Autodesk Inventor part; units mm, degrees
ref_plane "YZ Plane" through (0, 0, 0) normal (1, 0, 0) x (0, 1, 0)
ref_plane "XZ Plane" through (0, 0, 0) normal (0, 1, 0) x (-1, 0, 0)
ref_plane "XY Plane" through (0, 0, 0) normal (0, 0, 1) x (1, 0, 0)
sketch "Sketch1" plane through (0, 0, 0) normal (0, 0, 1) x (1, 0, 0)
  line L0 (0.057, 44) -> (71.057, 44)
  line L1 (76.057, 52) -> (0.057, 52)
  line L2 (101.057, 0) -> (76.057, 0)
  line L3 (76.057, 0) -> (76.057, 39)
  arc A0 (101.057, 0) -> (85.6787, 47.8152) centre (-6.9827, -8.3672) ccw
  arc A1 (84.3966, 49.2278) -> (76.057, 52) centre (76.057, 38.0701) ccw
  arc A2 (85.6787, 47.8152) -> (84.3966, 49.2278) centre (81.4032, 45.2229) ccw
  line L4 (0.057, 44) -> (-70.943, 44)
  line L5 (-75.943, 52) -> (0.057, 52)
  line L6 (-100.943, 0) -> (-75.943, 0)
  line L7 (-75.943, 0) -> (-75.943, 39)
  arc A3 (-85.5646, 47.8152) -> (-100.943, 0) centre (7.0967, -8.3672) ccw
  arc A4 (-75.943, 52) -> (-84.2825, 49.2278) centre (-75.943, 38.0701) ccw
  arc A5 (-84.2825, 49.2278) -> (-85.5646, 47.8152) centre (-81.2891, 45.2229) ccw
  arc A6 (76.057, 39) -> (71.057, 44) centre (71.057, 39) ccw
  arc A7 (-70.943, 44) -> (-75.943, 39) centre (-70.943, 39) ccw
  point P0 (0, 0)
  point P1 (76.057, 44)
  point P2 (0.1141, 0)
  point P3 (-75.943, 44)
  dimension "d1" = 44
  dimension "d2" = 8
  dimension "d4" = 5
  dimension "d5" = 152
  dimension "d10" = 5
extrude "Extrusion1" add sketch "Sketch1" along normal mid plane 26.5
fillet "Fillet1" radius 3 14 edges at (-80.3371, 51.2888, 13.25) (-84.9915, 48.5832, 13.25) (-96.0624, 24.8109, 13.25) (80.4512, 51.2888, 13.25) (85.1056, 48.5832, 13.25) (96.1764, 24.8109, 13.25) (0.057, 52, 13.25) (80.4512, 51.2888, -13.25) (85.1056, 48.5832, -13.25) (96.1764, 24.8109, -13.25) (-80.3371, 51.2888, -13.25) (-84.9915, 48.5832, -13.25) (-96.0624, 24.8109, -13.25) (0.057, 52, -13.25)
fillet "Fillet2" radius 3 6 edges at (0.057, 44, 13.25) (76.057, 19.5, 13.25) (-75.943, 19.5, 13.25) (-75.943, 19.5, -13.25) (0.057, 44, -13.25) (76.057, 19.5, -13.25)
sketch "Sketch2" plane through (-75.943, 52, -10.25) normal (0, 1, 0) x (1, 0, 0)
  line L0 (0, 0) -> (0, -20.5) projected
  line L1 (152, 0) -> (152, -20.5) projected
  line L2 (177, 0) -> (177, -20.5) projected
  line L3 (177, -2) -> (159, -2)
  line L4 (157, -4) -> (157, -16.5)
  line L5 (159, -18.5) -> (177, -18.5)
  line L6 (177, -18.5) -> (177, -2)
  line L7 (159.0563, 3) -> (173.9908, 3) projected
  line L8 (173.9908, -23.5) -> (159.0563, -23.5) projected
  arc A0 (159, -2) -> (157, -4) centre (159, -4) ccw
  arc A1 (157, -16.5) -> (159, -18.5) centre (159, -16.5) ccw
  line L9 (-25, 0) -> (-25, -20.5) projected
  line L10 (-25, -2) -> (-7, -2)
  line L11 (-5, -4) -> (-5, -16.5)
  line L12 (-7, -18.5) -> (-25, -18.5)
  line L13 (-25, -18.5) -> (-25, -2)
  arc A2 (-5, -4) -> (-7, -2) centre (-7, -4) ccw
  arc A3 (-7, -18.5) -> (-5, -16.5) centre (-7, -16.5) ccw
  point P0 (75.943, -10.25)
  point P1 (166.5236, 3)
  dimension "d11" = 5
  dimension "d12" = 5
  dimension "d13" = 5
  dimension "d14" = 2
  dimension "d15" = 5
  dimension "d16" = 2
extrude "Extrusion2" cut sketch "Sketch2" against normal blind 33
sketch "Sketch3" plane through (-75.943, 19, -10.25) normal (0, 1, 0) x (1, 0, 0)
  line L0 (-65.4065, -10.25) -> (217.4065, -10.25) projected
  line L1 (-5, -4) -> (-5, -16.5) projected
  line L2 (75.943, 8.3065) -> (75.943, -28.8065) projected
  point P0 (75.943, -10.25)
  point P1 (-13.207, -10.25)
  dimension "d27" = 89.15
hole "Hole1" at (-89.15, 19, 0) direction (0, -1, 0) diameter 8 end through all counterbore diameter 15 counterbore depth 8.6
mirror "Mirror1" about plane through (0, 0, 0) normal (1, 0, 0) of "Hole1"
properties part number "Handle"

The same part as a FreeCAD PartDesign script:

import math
import FreeCAD as App
import Part
import Sketcher
Q = App.Units.Quantity


def edges_at(feature, points):
    """Names of the edges that pass closest to the given points."""
    edges = feature.Shape.Edges
    near = lambda p: min(range(len(edges)), key=lambda i: edges[i].distToShape(Part.Vertex(*p))[0])
    return sorted({f"Edge{near(p) + 1}" for p in points})

doc = App.newDocument("Part")
body = doc.addObject("PartDesign::Body", "Body")

# Sketch on XY plane
sketch1 = body.newObject("Sketcher::SketchObject", "Sketch")
sketch1.AttachmentSupport = (doc.getObject("XY_Plane"), [""])
sketch1.MapMode = "FlatFace"
sketch1.addGeometry(Part.LineSegment(App.Vector(-70.943, 44, 0), App.Vector(71.057, 44, 0)), False)
sketch1.addGeometry(Part.ArcOfCircle(Part.Circle(App.Vector(71.057, 39, 0), App.Vector(0, 0, 1), 5), math.radians(0), math.radians(90)), False)
sketch1.addGeometry(Part.LineSegment(App.Vector(76.057, 39, 0), App.Vector(76.057, 0, 0)), False)
sketch1.addGeometry(Part.LineSegment(App.Vector(76.057, 0, 0), App.Vector(101.057, 0, 0)), False)
sketch1.addGeometry(Part.ArcOfCircle(Part.Circle(App.Vector(-6.9827, -8.3672, 0), App.Vector(0, 0, 1), 108.363217), math.radians(4.428467), math.radians(31.229244)), False)
sketch1.addGeometry(Part.ArcOfCircle(Part.Circle(App.Vector(81.4032, 45.2229, 0), App.Vector(0, 0, 1), 4.999992), math.radians(31.229064), math.radians(53.224297)), False)
sketch1.addGeometry(Part.ArcOfCircle(Part.Circle(App.Vector(76.057, 38.0701, 0), App.Vector(0, 0, 1), 13.929939), math.radians(53.224458), math.radians(90)), False)
sketch1.addGeometry(Part.LineSegment(App.Vector(76.057, 52, 0), App.Vector(-75.943, 52, 0)), False)
sketch1.addGeometry(Part.ArcOfCircle(Part.Circle(App.Vector(-75.943, 38.0701, 0), App.Vector(0, 0, 1), 13.9299), math.radians(90), math.radians(126.775213)), False)
sketch1.addGeometry(Part.ArcOfCircle(Part.Circle(App.Vector(-81.2891, 45.2229, 0), App.Vector(0, 0, 1), 4.999967), math.radians(126.775703), math.radians(148.770936)), False)
sketch1.addGeometry(Part.ArcOfCircle(Part.Circle(App.Vector(7.0967, -8.3672, 0), App.Vector(0, 0, 1), 108.363179), math.radians(148.770729), math.radians(175.571533)), False)
sketch1.addGeometry(Part.LineSegment(App.Vector(-100.943, 0, 0), App.Vector(-75.943, 0, 0)), False)
sketch1.addGeometry(Part.LineSegment(App.Vector(-75.943, 0, 0), App.Vector(-75.943, 39, 0)), False)
sketch1.addGeometry(Part.ArcOfCircle(Part.Circle(App.Vector(-70.943, 39, 0), App.Vector(0, 0, 1), 5), math.radians(90), math.radians(180)), False)
sketch1.addConstraint(Sketcher.Constraint("Tangent", 0, 2, 1, 2))
sketch1.addConstraint(Sketcher.Constraint("Tangent", 1, 1, 2, 1))
sketch1.addConstraint(Sketcher.Constraint("Coincident", 2, 2, 3, 1))
sketch1.addConstraint(Sketcher.Constraint("Coincident", 3, 2, 4, 1))
sketch1.addConstraint(Sketcher.Constraint("Tangent", 4, 2, 5, 1))
sketch1.addConstraint(Sketcher.Constraint("Tangent", 5, 2, 6, 1))
sketch1.addConstraint(Sketcher.Constraint("Tangent", 6, 2, 7, 1))
sketch1.addConstraint(Sketcher.Constraint("Tangent", 7, 2, 8, 1))
sketch1.addConstraint(Sketcher.Constraint("Tangent", 8, 2, 9, 1))
sketch1.addConstraint(Sketcher.Constraint("Tangent", 9, 2, 10, 1))
sketch1.addConstraint(Sketcher.Constraint("Coincident", 10, 2, 11, 1))
sketch1.addConstraint(Sketcher.Constraint("Coincident", 11, 2, 12, 1))
sketch1.addConstraint(Sketcher.Constraint("Tangent", 12, 2, 13, 2))
sketch1.addConstraint(Sketcher.Constraint("Tangent", 13, 1, 0, 1))
sketch1.addConstraint(Sketcher.Constraint("Horizontal", 0))
sketch1.addConstraint(Sketcher.Constraint("Vertical", 2))
sketch1.addConstraint(Sketcher.Constraint("Horizontal", 3))
sketch1.addConstraint(Sketcher.Constraint("Horizontal", 7))
sketch1.addConstraint(Sketcher.Constraint("Horizontal", 11))
sketch1.addConstraint(Sketcher.Constraint("Vertical", 12))
sketch1.addConstraint(Sketcher.Constraint("Equal", 1, 5))
sketch1.addConstraint(Sketcher.Constraint("Equal", 6, 8))
sketch1.addConstraint(Sketcher.Constraint("Equal", 5, 9))
sketch1.addConstraint(Sketcher.Constraint("Equal", 4, 10))
sketch1.addConstraint(Sketcher.Constraint("Equal", 9, 13))
sketch1.addConstraint(Sketcher.Constraint("PointOnObject", 2, 2, -1))
sketch1.addConstraint(Sketcher.Constraint("PointOnObject", 10, 2, -1))
sketch1.addConstraint(Sketcher.Constraint("Horizontal", 5, 3, 9, 3))
sketch1.addConstraint(Sketcher.Constraint("Horizontal", 4, 3, 10, 3))
sketch1.addConstraint(Sketcher.Constraint("Vertical", 6, 3, 1, 1))
sketch1.addConstraint(Sketcher.Constraint("Vertical", 7, 2, 11, 2))
sketch1.addConstraint(Sketcher.Constraint("Radius", 1, Q("5 mm")))
sketch1.addConstraint(Sketcher.Constraint("DistanceX", 7, 2, 7, 1, Q("152 mm")))
sketch1.addConstraint(Sketcher.Constraint("DistanceY", -1, 1, 0, 2, Q("44 mm")))
sketch1.addConstraint(Sketcher.Constraint("DistanceY", 0, 2, 6, 2, Q("8 mm")))
sketch1.addConstraint(Sketcher.Constraint("DistanceX", 3, 1, 3, 2, Q("25 mm")))
sketch1.addConstraint(Sketcher.Constraint("Radius", 6, Q("13.93 mm")))
sketch1.addConstraint(Sketcher.Constraint("Radius", 4, Q("108.3632 mm")))
sketch1.addConstraint(Sketcher.Constraint("DistanceY", 4, 3, 5, 3, Q("53.59 mm")))
sketch1.addConstraint(Sketcher.Constraint("DistanceX", -1, 1, 1, 3, Q("71.057 mm")))
pad1 = body.newObject("PartDesign::Pad", "Pad")
pad1.Profile = sketch1
pad1.Length = 26.5
pad1.Midplane = True
doc.recompute()

fillet = body.newObject("PartDesign::Fillet", "Fillet")
fillet.Base = (pad1, edges_at(pad1, [
    (-80.337, 51.289, 13.25),
    (-84.992, 48.583, 13.25),
    (-96.062, 24.811, 13.25),
    (80.451, 51.289, 13.25),
    (85.106, 48.583, 13.25),
    (96.176, 24.811, 13.25),
    (0.057, 52, 13.25),
    (80.451, 51.289, -13.25),
    (85.106, 48.583, -13.25),
    (96.176, 24.811, -13.25),
    (-80.337, 51.289, -13.25),
    (-84.992, 48.583, -13.25),
    (-96.062, 24.811, -13.25),
    (0.057, 52, -13.25),
]))
fillet.Radius = 3
doc.recompute()

fillet2 = body.newObject("PartDesign::Fillet", "Fillet001")
fillet2.Base = (fillet, edges_at(fillet, [
    (0.057, 44, 13.25),
    (76.057, 19.5, 13.25),
    (-75.943, 19.5, 13.25),
    (-75.943, 19.5, -13.25),
    (0.057, 44, -13.25),
    (76.057, 19.5, -13.25),
]))
fillet2.Radius = 3

# Sketch on XZ plane
sketch2 = body.newObject("Sketcher::SketchObject", "Sketch001")
sketch2.AttachmentSupport = (doc.getObject("XZ_Plane"), [""])
sketch2.MapMode = "FlatFace"
sketch2.AttachmentOffset = App.Placement(App.Vector(0, 0, -52), App.Rotation())
sketch2.addGeometry(Part.LineSegment(App.Vector(101.057, 8.25, 0), App.Vector(101.057, -8.25, 0)), False)
sketch2.addGeometry(Part.LineSegment(App.Vector(101.057, -8.25, 0), App.Vector(83.057, -8.25, 0)), False)
sketch2.addGeometry(Part.ArcOfCircle(Part.Circle(App.Vector(83.057, -6.25, 0), App.Vector(0, 0, 1), 2), math.radians(180), math.radians(270)), False)
sketch2.addGeometry(Part.LineSegment(App.Vector(81.057, -6.25, 0), App.Vector(81.057, 6.25, 0)), False)
sketch2.addGeometry(Part.ArcOfCircle(Part.Circle(App.Vector(83.057, 6.25, 0), App.Vector(0, 0, 1), 2), math.radians(90), math.radians(180)), False)
sketch2.addGeometry(Part.LineSegment(App.Vector(83.057, 8.25, 0), App.Vector(101.057, 8.25, 0)), False)
sketch2.addGeometry(Part.LineSegment(App.Vector(-82.943, -8.25, 0), App.Vector(-100.943, -8.25, 0)), False)
sketch2.addGeometry(Part.LineSegment(App.Vector(-100.943, -8.25, 0), App.Vector(-100.943, 8.25, 0)), False)
sketch2.addGeometry(Part.LineSegment(App.Vector(-100.943, 8.25, 0), App.Vector(-82.943, 8.25, 0)), False)
sketch2.addGeometry(Part.ArcOfCircle(Part.Circle(App.Vector(-82.943, 6.25, 0), App.Vector(0, 0, 1), 2), math.radians(0), math.radians(90)), False)
sketch2.addGeometry(Part.LineSegment(App.Vector(-80.943, 6.25, 0), App.Vector(-80.943, -6.25, 0)), False)
sketch2.addGeometry(Part.ArcOfCircle(Part.Circle(App.Vector(-82.943, -6.25, 0), App.Vector(0, 0, 1), 2), math.radians(-90), math.radians(0)), False)
sketch2.addConstraint(Sketcher.Constraint("Coincident", 0, 2, 1, 1))
sketch2.addConstraint(Sketcher.Constraint("Tangent", 1, 2, 2, 2))
sketch2.addConstraint(Sketcher.Constraint("Tangent", 2, 1, 3, 1))
sketch2.addConstraint(Sketcher.Constraint("Tangent", 3, 2, 4, 2))
sketch2.addConstraint(Sketcher.Constraint("Tangent", 4, 1, 5, 1))
sketch2.addConstraint(Sketcher.Constraint("Coincident", 5, 2, 0, 1))
sketch2.addConstraint(Sketcher.Constraint("Coincident", 6, 2, 7, 1))
sketch2.addConstraint(Sketcher.Constraint("Coincident", 7, 2, 8, 1))
sketch2.addConstraint(Sketcher.Constraint("Tangent", 8, 2, 9, 2))
sketch2.addConstraint(Sketcher.Constraint("Tangent", 9, 1, 10, 1))
sketch2.addConstraint(Sketcher.Constraint("Tangent", 10, 2, 11, 2))
sketch2.addConstraint(Sketcher.Constraint("Tangent", 11, 1, 6, 1))
sketch2.addConstraint(Sketcher.Constraint("Vertical", 0))
sketch2.addConstraint(Sketcher.Constraint("Horizontal", 1))
sketch2.addConstraint(Sketcher.Constraint("Vertical", 3))
sketch2.addConstraint(Sketcher.Constraint("Horizontal", 5))
sketch2.addConstraint(Sketcher.Constraint("Horizontal", 6))
sketch2.addConstraint(Sketcher.Constraint("Vertical", 7))
sketch2.addConstraint(Sketcher.Constraint("Horizontal", 8))
sketch2.addConstraint(Sketcher.Constraint("Vertical", 10))
sketch2.addConstraint(Sketcher.Constraint("Equal", 2, 4))
sketch2.addConstraint(Sketcher.Constraint("Equal", 4, 9))
sketch2.addConstraint(Sketcher.Constraint("Equal", 9, 11))
sketch2.addConstraint(Sketcher.Constraint("Horizontal", 4, 3, 9, 3))
sketch2.addConstraint(Sketcher.Constraint("Horizontal", 2, 3, 11, 3))
sketch2.addConstraint(Sketcher.Constraint("Equal", 5, 6))
sketch2.addConstraint(Sketcher.Constraint("Radius", 2, Q("2 mm")))
sketch2.addConstraint(Sketcher.Constraint("DistanceX", 1, 2, 1, 1, Q("18 mm")))
sketch2.addConstraint(Sketcher.Constraint("DistanceY", 0, 2, 0, 1, Q("16.5 mm")))
sketch2.addConstraint(Sketcher.Constraint("DistanceX", 9, 3, 4, 3, Q("166 mm")))
sketch2.addConstraint(Sketcher.Constraint("DistanceY", 2, 3, -1, 1, Q("6.25 mm")))
sketch2.addConstraint(Sketcher.Constraint("DistanceX", -1, 1, 2, 3, Q("83.057 mm")))
pocket1 = body.newObject("PartDesign::Pocket", "Pocket")
pocket1.Profile = sketch2
pocket1.Length = 33
pocket1.Reversed = True

# Sketch on XZ plane
sketch3 = body.newObject("Sketcher::SketchObject", "Sketch002")
sketch3.AttachmentSupport = (doc.getObject("XZ_Plane"), [""])
sketch3.MapMode = "FlatFace"
sketch3.AttachmentOffset = App.Placement(App.Vector(0, 0, -19), App.Rotation())
sketch3.addGeometry(Part.Circle(App.Vector(-89.15, 0, 0), App.Vector(0, 0, 1), 4), False)
sketch3.addConstraint(Sketcher.Constraint("PointOnObject", 0, 3, -1))
sketch3.addConstraint(Sketcher.Constraint("Diameter", 0, Q("8 mm")))
sketch3.addConstraint(Sketcher.Constraint("DistanceX", 0, 3, -1, 1, Q("89.15 mm")))
doc.recompute()
hole = body.newObject("PartDesign::Hole", "Hole")
hole.Profile = sketch3
hole.ThreadType = "None"
hole.Diameter = 8
hole.DepthType = "ThroughAll"
hole.HoleCutType = "Counterbore"
hole.HoleCutDiameter = 15
hole.HoleCutDepth = 8.6
hole.Reversed = True
doc.recompute()

mirrored = body.newObject("PartDesign::Mirrored", "Mirrored")
mirrored.Originals = [hole]
mirrored.MirrorPlane = (doc.getObject("YZ_Plane"), [""])
body.Tip = mirrored

doc.recompute()
